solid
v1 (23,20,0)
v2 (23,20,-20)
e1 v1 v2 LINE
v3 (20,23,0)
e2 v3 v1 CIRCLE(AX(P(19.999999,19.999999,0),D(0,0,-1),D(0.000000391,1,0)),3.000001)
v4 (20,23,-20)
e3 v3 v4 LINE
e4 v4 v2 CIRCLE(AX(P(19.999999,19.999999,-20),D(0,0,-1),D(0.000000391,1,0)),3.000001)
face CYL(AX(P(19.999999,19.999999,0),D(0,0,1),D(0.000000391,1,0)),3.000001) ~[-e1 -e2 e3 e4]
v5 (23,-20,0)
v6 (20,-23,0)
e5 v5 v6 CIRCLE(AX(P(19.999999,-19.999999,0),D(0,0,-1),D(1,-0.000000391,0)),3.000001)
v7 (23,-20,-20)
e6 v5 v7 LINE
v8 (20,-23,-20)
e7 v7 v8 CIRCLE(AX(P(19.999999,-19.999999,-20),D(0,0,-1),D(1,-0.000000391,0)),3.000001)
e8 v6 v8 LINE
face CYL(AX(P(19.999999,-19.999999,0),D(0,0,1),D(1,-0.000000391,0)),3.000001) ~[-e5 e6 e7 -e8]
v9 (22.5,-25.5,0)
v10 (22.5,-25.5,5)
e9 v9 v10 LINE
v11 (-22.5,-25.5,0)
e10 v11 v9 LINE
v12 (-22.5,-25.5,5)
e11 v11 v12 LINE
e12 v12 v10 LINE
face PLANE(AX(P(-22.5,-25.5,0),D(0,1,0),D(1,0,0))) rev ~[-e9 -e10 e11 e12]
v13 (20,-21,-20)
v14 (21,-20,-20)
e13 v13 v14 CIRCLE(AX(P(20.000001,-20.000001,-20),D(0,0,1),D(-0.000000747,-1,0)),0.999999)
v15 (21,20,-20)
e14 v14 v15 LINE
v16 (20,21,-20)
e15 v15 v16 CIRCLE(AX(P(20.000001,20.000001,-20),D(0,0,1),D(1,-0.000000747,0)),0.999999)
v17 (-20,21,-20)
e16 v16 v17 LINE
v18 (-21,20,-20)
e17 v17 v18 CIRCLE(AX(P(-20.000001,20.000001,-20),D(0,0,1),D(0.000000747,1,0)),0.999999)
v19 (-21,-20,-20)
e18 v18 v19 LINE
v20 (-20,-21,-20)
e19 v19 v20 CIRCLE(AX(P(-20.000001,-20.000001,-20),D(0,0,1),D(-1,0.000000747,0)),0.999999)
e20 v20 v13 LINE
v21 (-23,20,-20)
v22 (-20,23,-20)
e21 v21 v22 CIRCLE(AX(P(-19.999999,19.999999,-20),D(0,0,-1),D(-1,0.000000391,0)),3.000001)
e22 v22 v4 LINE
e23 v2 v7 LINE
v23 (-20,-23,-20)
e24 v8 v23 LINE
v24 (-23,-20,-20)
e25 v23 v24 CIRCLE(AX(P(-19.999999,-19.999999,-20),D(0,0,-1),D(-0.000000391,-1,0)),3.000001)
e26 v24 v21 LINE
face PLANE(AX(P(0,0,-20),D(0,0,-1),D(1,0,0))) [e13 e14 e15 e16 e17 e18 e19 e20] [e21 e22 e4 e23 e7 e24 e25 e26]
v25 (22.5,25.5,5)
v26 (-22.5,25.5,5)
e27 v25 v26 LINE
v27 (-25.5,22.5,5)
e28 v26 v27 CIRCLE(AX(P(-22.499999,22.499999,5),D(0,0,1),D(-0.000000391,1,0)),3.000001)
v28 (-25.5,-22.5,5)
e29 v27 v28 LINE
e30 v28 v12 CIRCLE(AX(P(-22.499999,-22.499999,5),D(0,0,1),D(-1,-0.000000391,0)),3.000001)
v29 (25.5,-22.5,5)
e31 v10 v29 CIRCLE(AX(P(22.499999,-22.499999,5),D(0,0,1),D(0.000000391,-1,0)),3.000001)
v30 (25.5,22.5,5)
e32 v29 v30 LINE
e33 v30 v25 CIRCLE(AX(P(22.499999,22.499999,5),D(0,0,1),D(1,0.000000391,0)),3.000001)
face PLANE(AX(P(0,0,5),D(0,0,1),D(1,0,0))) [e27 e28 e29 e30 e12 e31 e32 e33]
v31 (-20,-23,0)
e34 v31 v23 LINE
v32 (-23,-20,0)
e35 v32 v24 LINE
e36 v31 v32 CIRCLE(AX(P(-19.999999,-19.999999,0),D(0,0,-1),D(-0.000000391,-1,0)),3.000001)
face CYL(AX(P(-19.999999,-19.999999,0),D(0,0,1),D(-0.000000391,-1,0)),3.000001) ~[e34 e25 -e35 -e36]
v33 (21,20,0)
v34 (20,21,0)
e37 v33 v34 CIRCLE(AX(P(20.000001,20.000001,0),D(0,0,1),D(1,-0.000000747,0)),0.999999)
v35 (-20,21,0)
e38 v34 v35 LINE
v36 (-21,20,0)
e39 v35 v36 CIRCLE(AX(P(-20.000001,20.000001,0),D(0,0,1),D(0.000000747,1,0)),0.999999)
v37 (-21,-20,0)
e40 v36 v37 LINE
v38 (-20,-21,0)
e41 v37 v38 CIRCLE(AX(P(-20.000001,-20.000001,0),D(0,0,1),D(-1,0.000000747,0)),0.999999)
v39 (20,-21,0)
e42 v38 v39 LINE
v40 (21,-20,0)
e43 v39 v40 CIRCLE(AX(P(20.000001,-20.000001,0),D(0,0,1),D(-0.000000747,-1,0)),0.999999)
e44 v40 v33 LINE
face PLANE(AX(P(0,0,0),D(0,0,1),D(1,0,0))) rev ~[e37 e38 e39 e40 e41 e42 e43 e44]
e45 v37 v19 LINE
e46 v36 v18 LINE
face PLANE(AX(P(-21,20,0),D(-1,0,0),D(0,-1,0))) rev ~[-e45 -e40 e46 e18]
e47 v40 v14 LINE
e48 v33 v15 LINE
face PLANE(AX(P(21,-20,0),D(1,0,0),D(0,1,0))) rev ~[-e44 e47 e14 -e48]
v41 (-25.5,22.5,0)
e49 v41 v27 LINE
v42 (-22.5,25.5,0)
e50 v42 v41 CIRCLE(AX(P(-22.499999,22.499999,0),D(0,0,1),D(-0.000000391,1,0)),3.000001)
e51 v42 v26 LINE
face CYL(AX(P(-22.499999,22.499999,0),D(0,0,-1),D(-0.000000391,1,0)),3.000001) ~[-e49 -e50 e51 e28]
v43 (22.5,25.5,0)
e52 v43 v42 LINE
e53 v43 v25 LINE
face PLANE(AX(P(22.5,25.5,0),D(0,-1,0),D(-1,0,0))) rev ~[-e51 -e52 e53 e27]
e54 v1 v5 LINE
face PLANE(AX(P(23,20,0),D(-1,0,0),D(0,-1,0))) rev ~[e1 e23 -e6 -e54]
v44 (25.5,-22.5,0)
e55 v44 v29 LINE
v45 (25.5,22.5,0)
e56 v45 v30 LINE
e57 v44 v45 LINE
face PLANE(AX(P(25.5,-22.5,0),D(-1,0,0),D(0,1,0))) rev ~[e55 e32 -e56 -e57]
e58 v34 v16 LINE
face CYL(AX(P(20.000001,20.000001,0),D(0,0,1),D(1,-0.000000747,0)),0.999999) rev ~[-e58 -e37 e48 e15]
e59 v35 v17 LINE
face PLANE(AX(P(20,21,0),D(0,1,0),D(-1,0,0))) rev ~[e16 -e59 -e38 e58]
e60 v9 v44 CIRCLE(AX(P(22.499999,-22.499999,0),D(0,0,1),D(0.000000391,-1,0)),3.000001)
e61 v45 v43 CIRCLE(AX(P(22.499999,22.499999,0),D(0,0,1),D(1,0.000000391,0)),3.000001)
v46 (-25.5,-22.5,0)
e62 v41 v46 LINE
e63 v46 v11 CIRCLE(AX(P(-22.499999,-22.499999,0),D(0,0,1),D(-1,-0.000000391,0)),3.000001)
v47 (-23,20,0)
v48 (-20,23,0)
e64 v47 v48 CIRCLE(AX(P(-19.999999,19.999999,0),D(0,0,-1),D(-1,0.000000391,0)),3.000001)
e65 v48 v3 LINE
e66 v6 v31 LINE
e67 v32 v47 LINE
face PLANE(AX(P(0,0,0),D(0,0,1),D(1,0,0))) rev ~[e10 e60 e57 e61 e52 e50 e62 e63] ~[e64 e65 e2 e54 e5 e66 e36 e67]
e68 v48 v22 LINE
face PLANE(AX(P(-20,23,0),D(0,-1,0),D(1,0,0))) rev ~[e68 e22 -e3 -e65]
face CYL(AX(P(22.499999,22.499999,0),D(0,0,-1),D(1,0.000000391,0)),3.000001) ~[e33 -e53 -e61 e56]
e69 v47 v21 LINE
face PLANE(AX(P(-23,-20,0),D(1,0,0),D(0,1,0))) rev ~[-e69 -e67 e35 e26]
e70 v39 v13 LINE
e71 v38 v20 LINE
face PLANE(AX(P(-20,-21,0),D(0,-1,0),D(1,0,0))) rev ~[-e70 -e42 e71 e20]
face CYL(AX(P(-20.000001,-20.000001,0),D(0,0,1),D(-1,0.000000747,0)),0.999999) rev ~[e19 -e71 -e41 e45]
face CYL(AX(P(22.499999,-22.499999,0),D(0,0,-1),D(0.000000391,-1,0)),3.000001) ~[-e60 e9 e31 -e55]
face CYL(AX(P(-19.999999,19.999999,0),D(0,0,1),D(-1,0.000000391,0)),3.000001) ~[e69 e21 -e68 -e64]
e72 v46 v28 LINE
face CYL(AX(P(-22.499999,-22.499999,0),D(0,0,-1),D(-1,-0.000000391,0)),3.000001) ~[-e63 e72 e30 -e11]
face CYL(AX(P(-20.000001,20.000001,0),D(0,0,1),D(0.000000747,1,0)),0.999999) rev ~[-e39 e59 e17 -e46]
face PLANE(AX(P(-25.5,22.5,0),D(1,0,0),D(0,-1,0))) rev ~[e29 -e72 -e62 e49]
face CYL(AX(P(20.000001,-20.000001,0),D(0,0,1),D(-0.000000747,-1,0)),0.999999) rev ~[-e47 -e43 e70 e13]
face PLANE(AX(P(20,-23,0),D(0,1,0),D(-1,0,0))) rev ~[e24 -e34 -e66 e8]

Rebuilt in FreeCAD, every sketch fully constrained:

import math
import FreeCAD as App
import Part
import Sketcher

doc = App.newDocument("Part")
body = doc.addObject("PartDesign::Body", "Body")

sketch1 = body.newObject("Sketcher::SketchObject", "Sketch")
sketch1.AttachmentSupport = (doc.getObject("XY_Plane"), [""])
sketch1.MapMode = "FlatFace"
sketch1.addGeometry([
    Part.ArcOfCircle(Part.Circle(App.Vector(-22.499999, -22.499999, 0), App.Vector(0, 0, 1), 3.000001), math.radians(-179.999978), math.radians(-90.000022)),
    Part.LineSegment(App.Vector(-22.5, -25.5, 0), App.Vector(22.5, -25.5, 0)),
    Part.ArcOfCircle(Part.Circle(App.Vector(22.499999, -22.499999, 0), App.Vector(0, 0, 1), 3.000001), math.radians(-89.999978), math.radians(-0.000022)),
    Part.LineSegment(App.Vector(25.5, -22.5, 0), App.Vector(25.5, 22.5, 0)),
    Part.ArcOfCircle(Part.Circle(App.Vector(22.499999, 22.499999, 0), App.Vector(0, 0, 1), 3.000001), math.radians(0.000022), math.radians(89.999978)),
    Part.LineSegment(App.Vector(22.5, 25.5, 0), App.Vector(-22.5, 25.5, 0)),
    Part.ArcOfCircle(Part.Circle(App.Vector(-22.499999, 22.499999, 0), App.Vector(0, 0, 1), 3.000001), math.radians(90.000022), math.radians(179.999978)),
    Part.LineSegment(App.Vector(-25.5, 22.5, 0), App.Vector(-25.5, -22.5, 0)),
], False)
sketch1.addConstraint([
    Sketcher.Constraint("Tangent", 0, 2, 1, 1),
    Sketcher.Constraint("Tangent", 1, 2, 2, 1),
    Sketcher.Constraint("Tangent", 2, 2, 3, 1),
    Sketcher.Constraint("Tangent", 3, 2, 4, 1),
    Sketcher.Constraint("Tangent", 4, 2, 5, 1),
    Sketcher.Constraint("Tangent", 5, 2, 6, 1),
    Sketcher.Constraint("Tangent", 6, 2, 7, 1),
    Sketcher.Constraint("Tangent", 7, 2, 0, 1),
    Sketcher.Constraint("Horizontal", 1),
    Sketcher.Constraint("Vertical", 3),
    Sketcher.Constraint("Horizontal", 5),
    Sketcher.Constraint("Vertical", 7),
    Sketcher.Constraint("Equal", 0, 2),
    Sketcher.Constraint("Equal", 2, 4),
    Sketcher.Constraint("Equal", 4, 6),
    Sketcher.Constraint("Symmetric", 0, 3, 4, 3, -1, 1),
    Sketcher.Constraint("Equal", 5, 3),
    Sketcher.Constraint("Radius", 0, 3.000001),
    Sketcher.Constraint("DistanceX", 1, 1, 1, 2, 45.0),
])
pad1 = body.newObject("PartDesign::Pad", "Pad")
pad1.Profile = sketch1
pad1.Length = 5

sketch2 = body.newObject("Sketcher::SketchObject", "Sketch001")
sketch2.AttachmentSupport = (doc.getObject("XY_Plane"), [""])
sketch2.MapMode = "FlatFace"
sketch2.addGeometry([
    Part.ArcOfCircle(Part.Circle(App.Vector(-19.999999, 19.999999, 0), App.Vector(0, 0, 1), 3.000001), math.radians(90.000022), math.radians(179.999978)),
    Part.LineSegment(App.Vector(-20, 23, 0), App.Vector(20, 23, 0)),
    Part.ArcOfCircle(Part.Circle(App.Vector(19.999999, 19.999999, 0), App.Vector(0, 0, 1), 3.000001), math.radians(0.000022), math.radians(89.999978)),
    Part.LineSegment(App.Vector(23, 20, 0), App.Vector(23, -20, 0)),
    Part.ArcOfCircle(Part.Circle(App.Vector(19.999999, -19.999999, 0), App.Vector(0, 0, 1), 3.000001), math.radians(-89.999978), math.radians(-0.000022)),
    Part.LineSegment(App.Vector(20, -23, 0), App.Vector(-20, -23, 0)),
    Part.ArcOfCircle(Part.Circle(App.Vector(-19.999999, -19.999999, 0), App.Vector(0, 0, 1), 3.000001), math.radians(-179.999978), math.radians(-90.000022)),
    Part.LineSegment(App.Vector(-23, -20, 0), App.Vector(-23, 20, 0)),
    Part.LineSegment(App.Vector(-20, -21, 0), App.Vector(20, -21, 0)),
    Part.ArcOfCircle(Part.Circle(App.Vector(20.000001, -20.000001, 0), App.Vector(0, 0, 1), 0.999999), math.radians(-90.000043), math.radians(0.000043)),
    Part.LineSegment(App.Vector(21, -20, 0), App.Vector(21, 20, 0)),
    Part.ArcOfCircle(Part.Circle(App.Vector(20.000001, 20.000001, 0), App.Vector(0, 0, 1), 0.999999), math.radians(-0.000043), math.radians(90.000043)),
    Part.LineSegment(App.Vector(20, 21, 0), App.Vector(-20, 21, 0)),
    Part.ArcOfCircle(Part.Circle(App.Vector(-20.000001, 20.000001, 0), App.Vector(0, 0, 1), 0.999999), math.radians(89.999957), math.radians(180.000043)),
    Part.LineSegment(App.Vector(-21, 20, 0), App.Vector(-21, -20, 0)),
    Part.ArcOfCircle(Part.Circle(App.Vector(-20.000001, -20.000001, 0), App.Vector(0, 0, 1), 0.999999), math.radians(179.999957), math.radians(270.000043)),
], False)
sketch2.addConstraint([
    Sketcher.Constraint("Tangent", 0, 1, 1, 1),
    Sketcher.Constraint("Tangent", 1, 2, 2, 2),
    Sketcher.Constraint("Tangent", 2, 1, 3, 1),
    Sketcher.Constraint("Tangent", 3, 2, 4, 2),
    Sketcher.Constraint("Tangent", 4, 1, 5, 1),
    Sketcher.Constraint("Tangent", 5, 2, 6, 2),
    Sketcher.Constraint("Tangent", 6, 1, 7, 1),
    Sketcher.Constraint("Tangent", 7, 2, 0, 2),
    Sketcher.Constraint("Tangent", 8, 2, 9, 1),
    Sketcher.Constraint("Tangent", 9, 2, 10, 1),
    Sketcher.Constraint("Tangent", 10, 2, 11, 1),
    Sketcher.Constraint("Tangent", 11, 2, 12, 1),
    Sketcher.Constraint("Tangent", 12, 2, 13, 1),
    Sketcher.Constraint("Tangent", 13, 2, 14, 1),
    Sketcher.Constraint("Tangent", 14, 2, 15, 1),
    Sketcher.Constraint("Tangent", 15, 2, 8, 1),
    Sketcher.Constraint("Horizontal", 1),
    Sketcher.Constraint("Vertical", 3),
    Sketcher.Constraint("Horizontal", 5),
    Sketcher.Constraint("Vertical", 7),
    Sketcher.Constraint("Horizontal", 8),
    Sketcher.Constraint("Vertical", 10),
    Sketcher.Constraint("Horizontal", 12),
    Sketcher.Constraint("Vertical", 14),
    Sketcher.Constraint("Coincident", 9, 3, 4, 3),
    Sketcher.Constraint("Coincident", 11, 3, 2, 3),
    Sketcher.Constraint("Coincident", 13, 3, 0, 3),
    Sketcher.Constraint("Equal", 0, 2),
    Sketcher.Constraint("Equal", 2, 4),
    Sketcher.Constraint("Equal", 4, 6),
    Sketcher.Constraint("Equal", 13, 15),
    Sketcher.Constraint("Symmetric", 0, 3, 4, 3, -1, 1),
    Sketcher.Constraint("Equal", 12, 3),
    Sketcher.Constraint("Radius", 0, 3.000001),
    Sketcher.Constraint("Radius", 9, 0.999999),
    Sketcher.Constraint("DistanceX", 1, 1, 1, 2, 40.0),
])
pad2 = body.newObject("PartDesign::Pad", "Pad001")
pad2.Profile = sketch2
pad2.Length = 20
pad2.Reversed = True

doc.recompute()
